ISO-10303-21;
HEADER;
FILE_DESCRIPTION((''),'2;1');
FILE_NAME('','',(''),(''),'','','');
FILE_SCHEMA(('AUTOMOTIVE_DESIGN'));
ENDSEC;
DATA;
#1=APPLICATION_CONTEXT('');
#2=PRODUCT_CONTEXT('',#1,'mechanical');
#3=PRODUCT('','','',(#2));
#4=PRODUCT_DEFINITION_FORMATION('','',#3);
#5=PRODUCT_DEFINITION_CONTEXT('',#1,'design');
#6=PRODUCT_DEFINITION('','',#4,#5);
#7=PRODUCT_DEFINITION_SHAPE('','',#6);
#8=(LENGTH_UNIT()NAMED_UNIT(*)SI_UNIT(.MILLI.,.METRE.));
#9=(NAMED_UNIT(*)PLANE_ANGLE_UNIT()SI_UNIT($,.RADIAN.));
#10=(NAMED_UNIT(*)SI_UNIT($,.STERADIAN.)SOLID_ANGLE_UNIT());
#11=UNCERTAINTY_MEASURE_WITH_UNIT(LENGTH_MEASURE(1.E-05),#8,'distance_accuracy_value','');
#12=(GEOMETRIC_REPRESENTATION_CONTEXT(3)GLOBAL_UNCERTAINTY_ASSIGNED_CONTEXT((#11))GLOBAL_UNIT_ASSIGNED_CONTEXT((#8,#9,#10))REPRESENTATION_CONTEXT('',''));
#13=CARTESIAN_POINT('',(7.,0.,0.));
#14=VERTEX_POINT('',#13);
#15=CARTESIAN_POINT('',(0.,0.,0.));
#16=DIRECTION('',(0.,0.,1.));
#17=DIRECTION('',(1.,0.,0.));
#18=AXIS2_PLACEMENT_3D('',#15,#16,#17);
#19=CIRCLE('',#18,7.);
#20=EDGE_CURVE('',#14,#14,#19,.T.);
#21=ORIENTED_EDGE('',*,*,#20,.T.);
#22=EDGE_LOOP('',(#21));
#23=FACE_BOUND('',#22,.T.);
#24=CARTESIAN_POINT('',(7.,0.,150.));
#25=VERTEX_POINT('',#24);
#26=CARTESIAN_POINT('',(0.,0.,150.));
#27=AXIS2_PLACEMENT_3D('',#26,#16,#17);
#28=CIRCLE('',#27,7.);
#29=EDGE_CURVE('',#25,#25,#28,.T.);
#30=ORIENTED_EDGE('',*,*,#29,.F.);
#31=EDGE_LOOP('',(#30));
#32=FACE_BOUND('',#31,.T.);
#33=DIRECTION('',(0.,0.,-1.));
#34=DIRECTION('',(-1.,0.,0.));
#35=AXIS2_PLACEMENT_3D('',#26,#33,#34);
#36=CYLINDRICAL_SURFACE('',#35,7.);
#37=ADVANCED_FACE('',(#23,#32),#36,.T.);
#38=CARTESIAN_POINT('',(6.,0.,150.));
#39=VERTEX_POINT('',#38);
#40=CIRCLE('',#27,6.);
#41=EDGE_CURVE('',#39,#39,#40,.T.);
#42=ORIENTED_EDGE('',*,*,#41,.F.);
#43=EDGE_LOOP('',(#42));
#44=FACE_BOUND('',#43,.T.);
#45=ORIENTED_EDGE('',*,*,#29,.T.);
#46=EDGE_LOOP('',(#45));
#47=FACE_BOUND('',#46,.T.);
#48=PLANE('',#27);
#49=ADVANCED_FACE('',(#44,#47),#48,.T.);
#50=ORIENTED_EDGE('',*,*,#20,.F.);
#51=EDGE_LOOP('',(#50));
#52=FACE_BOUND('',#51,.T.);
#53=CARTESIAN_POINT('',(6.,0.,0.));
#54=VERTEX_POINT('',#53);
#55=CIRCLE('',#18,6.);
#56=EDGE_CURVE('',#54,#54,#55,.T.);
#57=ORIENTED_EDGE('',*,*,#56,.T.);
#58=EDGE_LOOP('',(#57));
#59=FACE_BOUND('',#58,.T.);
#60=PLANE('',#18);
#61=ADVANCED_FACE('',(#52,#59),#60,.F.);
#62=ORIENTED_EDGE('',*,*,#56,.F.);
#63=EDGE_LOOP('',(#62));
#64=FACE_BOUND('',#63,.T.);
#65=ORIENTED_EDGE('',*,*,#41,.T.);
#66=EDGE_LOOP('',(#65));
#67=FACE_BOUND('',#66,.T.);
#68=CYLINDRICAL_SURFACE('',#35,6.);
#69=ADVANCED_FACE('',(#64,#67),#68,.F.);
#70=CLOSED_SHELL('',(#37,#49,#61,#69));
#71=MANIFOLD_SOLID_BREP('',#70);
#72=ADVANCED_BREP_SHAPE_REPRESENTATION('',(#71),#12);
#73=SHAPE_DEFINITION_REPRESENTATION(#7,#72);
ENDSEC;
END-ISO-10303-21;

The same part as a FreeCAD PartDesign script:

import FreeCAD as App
import Part
import Sketcher

V = App.Vector

doc = App.newDocument("Part")
params = doc.addObject("Spreadsheet::Sheet", "Params")
for row, (alias, value) in enumerate([
    ("sketch1_diameter", "14 mm"),
    ("sketch1_diameter2", "12 mm"),
    ("pad1_length", "150 mm"),
], start=1):
    params.set(f"A{row}", alias)
    params.set(f"B{row}", "=" + value)
    params.setAlias(f"B{row}", alias)

body = doc.addObject("PartDesign::Body", "Body")

# Sketch on XY plane
sketch1 = doc.addObject("Sketcher::SketchObject", "Sketch")
body.addObject(sketch1)
sketch1.AttachmentSupport = (doc.XY_Plane, [""])
sketch1.MapMode = "FlatFace"
sketch1.addGeometry([
    Part.Circle(V(0, 0, 0), V(0, 0, 1), 7),
    Part.Circle(V(0, 0, 0), V(0, 0, 1), 6),
], False)
sketch1.addConstraint([
    Sketcher.Constraint("Coincident", 0, 3, -1, 1),
    Sketcher.Constraint("Coincident", 1, 3, -1, 1),
    Sketcher.Constraint("Diameter", 0, 14.0),
    Sketcher.Constraint("Diameter", 1, 12.0),
])
sketch1.setExpression("Constraints[2]", "Params.sketch1_diameter")
sketch1.setExpression("Constraints[3]", "Params.sketch1_diameter2")
pad1 = doc.addObject("PartDesign::Pad", "Pad")
body.addObject(pad1)
pad1.Profile = sketch1
pad1.setExpression("Length", "Params.pad1_length")

doc.recompute()
